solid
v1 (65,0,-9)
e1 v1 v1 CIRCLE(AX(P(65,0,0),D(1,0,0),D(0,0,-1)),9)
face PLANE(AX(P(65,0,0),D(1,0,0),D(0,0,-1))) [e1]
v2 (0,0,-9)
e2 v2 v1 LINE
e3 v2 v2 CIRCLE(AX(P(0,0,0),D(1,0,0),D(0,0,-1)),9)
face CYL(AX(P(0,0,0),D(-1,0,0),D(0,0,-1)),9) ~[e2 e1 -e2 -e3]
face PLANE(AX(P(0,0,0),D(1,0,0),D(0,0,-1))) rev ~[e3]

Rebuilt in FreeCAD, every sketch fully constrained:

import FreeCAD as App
import Part
import Sketcher

V = App.Vector

doc = App.newDocument("Part")
body = doc.addObject("PartDesign::Body", "Body")

# Sketch on YZ plane
sketch1 = doc.addObject("Sketcher::SketchObject", "Sketch")
body.addObject(sketch1)
sketch1.AttachmentSupport = (doc.YZ_Plane, [""])
sketch1.MapMode = "FlatFace"
sketch1.addGeometry(Part.Circle(V(0, 0, 0), V(0, 0, 1), 9), False)
sketch1.addConstraint(Sketcher.Constraint("Coincident", 0, 3, -1, 1))
sketch1.addConstraint(Sketcher.Constraint("Diameter", 0, 18.0))
pad1 = doc.addObject("PartDesign::Pad", "Pad")
body.addObject(pad1)
pad1.Profile = sketch1
pad1.Length = 65

doc.recompute()
